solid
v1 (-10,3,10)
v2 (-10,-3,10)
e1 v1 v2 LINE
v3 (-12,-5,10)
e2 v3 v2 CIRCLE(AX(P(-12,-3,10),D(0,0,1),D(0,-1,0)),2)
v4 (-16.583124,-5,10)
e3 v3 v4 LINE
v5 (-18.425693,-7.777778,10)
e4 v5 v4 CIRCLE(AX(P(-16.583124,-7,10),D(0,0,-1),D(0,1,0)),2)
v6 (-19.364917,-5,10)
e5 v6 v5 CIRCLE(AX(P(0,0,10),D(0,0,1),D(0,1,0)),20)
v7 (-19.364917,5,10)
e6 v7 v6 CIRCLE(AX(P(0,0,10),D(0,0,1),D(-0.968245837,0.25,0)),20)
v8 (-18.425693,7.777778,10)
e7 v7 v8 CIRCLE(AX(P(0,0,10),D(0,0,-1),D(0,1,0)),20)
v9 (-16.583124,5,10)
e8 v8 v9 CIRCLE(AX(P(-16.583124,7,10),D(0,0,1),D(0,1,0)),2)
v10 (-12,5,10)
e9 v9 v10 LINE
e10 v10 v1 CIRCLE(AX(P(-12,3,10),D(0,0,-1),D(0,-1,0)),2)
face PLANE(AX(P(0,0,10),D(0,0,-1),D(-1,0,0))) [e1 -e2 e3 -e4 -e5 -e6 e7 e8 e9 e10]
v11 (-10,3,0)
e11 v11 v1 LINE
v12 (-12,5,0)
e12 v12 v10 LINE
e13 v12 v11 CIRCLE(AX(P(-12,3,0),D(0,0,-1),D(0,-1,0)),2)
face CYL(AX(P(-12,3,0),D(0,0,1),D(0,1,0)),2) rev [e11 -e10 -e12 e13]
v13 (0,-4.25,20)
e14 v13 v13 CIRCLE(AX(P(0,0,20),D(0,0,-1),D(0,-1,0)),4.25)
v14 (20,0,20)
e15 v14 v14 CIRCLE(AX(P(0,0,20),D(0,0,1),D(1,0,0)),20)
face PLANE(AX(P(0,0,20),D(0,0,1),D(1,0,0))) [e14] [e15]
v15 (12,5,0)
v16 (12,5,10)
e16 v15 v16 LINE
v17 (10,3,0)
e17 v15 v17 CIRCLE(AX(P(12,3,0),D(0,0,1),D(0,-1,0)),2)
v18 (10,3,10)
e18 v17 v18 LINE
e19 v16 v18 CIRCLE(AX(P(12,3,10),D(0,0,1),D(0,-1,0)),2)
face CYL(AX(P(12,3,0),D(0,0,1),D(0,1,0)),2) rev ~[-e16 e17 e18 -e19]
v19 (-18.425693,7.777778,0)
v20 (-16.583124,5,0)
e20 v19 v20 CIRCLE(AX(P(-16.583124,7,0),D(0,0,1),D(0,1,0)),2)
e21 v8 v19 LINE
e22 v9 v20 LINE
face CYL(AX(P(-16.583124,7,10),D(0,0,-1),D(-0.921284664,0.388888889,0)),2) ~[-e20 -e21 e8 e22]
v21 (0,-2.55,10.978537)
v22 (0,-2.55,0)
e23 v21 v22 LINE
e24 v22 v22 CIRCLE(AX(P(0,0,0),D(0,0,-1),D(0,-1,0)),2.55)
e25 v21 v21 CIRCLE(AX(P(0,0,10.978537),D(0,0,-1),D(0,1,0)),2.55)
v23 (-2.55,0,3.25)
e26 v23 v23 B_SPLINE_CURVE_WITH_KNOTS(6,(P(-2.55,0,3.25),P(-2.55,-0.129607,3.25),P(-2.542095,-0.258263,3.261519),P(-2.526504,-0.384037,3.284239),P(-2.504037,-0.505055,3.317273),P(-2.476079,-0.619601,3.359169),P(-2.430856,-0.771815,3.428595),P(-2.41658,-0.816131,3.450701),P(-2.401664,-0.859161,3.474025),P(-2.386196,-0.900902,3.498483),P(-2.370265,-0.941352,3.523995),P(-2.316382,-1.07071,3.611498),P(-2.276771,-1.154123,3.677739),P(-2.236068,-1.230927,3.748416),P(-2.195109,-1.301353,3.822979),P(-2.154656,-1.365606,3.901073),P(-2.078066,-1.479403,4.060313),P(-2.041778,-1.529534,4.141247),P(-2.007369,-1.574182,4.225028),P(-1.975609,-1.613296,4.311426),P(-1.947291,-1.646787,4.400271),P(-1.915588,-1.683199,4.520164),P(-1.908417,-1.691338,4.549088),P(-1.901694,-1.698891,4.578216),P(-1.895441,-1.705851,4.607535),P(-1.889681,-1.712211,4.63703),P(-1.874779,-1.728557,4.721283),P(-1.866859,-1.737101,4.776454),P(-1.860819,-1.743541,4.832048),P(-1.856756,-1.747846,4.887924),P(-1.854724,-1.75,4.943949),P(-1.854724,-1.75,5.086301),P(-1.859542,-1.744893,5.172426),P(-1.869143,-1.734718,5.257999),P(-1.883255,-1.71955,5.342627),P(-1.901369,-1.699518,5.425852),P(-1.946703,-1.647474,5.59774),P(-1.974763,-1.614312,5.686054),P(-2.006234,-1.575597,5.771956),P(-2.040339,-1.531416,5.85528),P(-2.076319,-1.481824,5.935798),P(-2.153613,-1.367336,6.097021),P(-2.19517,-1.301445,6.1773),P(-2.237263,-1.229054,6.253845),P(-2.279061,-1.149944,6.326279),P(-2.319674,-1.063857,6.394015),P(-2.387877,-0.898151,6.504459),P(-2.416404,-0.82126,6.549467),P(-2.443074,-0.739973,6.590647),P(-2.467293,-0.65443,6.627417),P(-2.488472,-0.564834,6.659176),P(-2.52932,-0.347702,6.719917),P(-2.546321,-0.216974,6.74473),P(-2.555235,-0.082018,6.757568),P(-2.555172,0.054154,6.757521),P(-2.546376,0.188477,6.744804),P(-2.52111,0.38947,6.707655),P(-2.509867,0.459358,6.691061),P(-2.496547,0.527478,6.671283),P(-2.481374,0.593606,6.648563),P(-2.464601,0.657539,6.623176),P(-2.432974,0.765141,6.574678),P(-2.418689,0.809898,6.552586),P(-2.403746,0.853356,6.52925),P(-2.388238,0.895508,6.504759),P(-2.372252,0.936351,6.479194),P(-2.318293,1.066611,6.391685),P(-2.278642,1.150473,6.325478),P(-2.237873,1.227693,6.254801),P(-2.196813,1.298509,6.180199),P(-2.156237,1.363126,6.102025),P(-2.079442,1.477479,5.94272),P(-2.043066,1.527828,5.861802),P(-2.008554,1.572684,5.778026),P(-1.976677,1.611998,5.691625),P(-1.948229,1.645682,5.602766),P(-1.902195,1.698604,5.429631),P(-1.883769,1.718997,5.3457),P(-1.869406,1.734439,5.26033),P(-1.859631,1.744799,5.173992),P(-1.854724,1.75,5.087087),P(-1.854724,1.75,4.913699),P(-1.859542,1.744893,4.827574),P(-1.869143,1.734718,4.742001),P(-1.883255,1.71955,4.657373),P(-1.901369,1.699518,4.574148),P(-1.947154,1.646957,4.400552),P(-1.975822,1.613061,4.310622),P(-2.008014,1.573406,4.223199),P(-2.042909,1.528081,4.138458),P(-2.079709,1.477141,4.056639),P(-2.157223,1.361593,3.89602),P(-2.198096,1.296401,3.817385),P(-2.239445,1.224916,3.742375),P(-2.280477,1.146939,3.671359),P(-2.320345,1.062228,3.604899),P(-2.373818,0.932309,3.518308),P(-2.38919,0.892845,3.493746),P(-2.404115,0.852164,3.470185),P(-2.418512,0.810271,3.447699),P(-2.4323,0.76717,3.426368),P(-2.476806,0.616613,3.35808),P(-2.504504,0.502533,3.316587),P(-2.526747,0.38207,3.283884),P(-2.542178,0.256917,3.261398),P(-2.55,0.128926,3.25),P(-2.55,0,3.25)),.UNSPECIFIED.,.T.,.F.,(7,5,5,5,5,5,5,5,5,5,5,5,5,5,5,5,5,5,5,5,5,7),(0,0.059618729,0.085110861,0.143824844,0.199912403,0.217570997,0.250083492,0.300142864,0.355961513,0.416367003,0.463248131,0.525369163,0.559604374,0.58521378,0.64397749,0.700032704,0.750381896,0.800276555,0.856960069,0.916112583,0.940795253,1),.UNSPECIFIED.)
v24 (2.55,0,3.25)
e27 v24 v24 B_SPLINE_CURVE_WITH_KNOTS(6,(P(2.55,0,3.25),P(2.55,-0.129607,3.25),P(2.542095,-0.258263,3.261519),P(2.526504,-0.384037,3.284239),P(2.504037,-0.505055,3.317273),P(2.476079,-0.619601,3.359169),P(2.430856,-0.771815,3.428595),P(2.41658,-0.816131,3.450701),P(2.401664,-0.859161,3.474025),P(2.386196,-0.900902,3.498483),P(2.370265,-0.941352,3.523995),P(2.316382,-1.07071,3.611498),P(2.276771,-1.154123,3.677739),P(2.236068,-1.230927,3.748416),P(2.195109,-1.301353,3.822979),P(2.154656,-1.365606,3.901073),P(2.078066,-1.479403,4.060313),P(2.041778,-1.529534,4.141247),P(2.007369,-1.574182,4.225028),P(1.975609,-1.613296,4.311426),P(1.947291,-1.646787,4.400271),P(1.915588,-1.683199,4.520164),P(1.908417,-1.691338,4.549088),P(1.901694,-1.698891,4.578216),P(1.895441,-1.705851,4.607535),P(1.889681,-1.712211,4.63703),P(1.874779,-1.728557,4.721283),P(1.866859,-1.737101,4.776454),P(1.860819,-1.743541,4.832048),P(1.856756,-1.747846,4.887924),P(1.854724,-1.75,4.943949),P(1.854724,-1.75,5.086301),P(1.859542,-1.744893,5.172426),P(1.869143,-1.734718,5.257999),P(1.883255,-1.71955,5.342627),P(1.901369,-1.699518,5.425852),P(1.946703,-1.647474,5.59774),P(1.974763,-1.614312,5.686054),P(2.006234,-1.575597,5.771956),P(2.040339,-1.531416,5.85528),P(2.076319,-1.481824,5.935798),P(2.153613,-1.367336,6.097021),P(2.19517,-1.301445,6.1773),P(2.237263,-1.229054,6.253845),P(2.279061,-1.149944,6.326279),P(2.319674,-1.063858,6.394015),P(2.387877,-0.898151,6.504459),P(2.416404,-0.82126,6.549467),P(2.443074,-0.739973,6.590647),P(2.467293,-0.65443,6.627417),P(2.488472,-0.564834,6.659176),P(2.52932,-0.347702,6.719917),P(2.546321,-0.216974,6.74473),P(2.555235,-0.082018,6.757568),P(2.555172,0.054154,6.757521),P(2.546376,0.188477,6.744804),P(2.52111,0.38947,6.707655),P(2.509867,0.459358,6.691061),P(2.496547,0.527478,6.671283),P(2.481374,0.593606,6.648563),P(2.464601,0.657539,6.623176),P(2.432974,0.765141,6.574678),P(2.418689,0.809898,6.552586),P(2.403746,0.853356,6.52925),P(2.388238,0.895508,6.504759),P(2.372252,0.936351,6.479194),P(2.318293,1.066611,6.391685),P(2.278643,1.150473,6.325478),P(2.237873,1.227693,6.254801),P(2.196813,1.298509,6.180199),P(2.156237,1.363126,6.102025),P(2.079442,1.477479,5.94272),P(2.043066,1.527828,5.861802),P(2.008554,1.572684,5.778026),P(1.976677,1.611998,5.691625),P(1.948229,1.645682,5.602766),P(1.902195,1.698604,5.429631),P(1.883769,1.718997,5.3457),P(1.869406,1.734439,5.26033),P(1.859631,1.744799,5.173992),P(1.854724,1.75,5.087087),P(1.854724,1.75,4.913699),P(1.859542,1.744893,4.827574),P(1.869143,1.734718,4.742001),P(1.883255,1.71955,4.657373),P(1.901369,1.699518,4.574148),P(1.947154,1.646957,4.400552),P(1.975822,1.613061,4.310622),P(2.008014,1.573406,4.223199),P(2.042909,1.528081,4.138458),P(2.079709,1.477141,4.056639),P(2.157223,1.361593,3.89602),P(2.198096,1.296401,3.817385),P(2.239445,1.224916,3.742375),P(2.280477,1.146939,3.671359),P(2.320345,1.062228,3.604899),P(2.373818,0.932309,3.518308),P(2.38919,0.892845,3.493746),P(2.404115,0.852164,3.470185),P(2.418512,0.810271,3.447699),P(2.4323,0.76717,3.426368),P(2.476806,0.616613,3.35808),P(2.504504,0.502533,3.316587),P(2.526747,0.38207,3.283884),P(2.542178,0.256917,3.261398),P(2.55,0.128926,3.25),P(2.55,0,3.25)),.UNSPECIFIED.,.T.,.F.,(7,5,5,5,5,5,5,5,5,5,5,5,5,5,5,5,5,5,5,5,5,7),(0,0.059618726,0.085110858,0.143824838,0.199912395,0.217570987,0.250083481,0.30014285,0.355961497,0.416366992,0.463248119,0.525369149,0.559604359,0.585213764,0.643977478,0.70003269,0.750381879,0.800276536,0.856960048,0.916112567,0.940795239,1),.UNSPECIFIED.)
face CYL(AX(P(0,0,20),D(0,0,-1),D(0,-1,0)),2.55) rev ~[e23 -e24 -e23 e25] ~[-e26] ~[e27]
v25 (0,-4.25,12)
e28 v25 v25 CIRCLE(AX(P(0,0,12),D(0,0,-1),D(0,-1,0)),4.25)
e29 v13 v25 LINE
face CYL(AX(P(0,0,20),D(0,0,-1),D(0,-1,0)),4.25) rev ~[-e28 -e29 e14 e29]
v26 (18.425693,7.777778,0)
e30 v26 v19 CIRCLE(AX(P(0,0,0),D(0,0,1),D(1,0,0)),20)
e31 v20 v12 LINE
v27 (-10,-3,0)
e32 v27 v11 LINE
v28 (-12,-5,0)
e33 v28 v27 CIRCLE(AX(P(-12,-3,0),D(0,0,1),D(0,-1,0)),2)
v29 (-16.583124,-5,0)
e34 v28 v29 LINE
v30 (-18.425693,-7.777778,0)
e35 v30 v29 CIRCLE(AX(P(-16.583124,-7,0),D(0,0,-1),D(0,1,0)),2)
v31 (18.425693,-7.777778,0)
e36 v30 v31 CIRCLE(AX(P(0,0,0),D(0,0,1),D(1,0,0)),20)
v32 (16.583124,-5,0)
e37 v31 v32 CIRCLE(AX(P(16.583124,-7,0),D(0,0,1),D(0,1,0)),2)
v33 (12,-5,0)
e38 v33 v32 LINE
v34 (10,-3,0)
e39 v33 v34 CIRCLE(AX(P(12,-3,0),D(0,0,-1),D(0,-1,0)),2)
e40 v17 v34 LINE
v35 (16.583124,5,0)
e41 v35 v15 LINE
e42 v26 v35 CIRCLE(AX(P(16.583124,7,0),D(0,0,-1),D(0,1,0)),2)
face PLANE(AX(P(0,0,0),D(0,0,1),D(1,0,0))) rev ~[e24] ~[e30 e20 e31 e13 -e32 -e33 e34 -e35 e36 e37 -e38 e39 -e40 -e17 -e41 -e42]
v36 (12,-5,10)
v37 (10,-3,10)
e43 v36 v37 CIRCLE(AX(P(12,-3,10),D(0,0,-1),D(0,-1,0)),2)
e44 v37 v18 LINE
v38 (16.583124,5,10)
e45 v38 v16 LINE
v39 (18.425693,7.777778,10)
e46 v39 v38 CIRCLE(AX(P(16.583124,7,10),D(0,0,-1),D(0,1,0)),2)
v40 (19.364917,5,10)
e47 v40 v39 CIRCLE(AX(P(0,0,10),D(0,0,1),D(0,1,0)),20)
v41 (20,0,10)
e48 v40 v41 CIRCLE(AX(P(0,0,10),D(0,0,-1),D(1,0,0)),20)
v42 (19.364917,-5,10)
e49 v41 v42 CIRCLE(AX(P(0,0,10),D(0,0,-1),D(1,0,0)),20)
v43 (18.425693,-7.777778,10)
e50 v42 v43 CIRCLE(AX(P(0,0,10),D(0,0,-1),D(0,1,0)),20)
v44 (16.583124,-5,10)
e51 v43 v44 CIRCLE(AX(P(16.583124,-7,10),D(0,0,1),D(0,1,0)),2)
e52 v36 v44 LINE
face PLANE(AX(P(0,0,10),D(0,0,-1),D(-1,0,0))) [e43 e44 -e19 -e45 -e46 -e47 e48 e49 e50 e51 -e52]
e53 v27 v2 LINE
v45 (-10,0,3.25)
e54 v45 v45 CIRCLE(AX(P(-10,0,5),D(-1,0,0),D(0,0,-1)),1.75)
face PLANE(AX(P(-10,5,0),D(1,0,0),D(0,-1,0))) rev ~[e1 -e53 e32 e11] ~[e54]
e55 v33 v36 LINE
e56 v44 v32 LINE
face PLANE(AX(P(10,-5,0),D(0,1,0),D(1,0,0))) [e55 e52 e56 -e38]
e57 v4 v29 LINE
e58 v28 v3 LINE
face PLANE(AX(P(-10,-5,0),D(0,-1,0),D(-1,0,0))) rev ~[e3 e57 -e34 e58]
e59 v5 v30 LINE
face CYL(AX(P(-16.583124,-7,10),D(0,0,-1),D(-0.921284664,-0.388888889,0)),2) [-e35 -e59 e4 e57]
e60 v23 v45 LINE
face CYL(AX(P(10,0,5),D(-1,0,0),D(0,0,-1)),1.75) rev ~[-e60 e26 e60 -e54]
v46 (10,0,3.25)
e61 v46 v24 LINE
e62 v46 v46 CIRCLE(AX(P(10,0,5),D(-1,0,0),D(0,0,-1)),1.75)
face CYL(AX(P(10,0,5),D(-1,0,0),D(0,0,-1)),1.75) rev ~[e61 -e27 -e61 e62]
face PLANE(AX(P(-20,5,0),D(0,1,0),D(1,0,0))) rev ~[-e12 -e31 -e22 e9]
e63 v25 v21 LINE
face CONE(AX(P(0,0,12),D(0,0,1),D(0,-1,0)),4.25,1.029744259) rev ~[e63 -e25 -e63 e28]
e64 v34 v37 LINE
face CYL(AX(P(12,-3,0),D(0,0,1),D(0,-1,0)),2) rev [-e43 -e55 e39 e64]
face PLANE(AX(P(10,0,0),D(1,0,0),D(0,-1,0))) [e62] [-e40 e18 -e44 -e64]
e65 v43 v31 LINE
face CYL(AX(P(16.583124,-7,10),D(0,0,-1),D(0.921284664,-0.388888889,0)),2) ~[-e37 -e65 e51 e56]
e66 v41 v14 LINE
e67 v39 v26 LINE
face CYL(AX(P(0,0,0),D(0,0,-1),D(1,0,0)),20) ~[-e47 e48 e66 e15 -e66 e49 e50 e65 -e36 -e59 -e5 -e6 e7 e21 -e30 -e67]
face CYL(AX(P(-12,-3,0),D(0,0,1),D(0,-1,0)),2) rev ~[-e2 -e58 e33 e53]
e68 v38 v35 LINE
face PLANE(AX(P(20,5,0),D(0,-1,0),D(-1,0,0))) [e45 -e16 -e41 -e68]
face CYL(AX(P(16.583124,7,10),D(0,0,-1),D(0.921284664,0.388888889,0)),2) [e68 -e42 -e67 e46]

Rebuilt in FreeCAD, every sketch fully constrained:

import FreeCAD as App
import Part
import Sketcher


def edges_at(feature, points):
    """Names of the edges that pass closest to the given points."""
    edges = feature.Shape.Edges
    near = lambda p: min(range(len(edges)), key=lambda i: edges[i].distToShape(Part.Vertex(*p))[0])
    return sorted({f"Edge{near(p) + 1}" for p in points})


def add_polygon(sketch, points):
    """Adds a closed chain of lines whose ends are joined by coincident constraints."""
    first, n = sketch.GeometryCount, len(points)
    for a, b in zip(points, points[1:] + points[:1]):
        sketch.addGeometry(Part.LineSegment(App.Vector(*a, 0), App.Vector(*b, 0)), False)
    for i in range(n):
        sketch.addConstraint(Sketcher.Constraint("Coincident", first + i, 2, first + (i + 1) % n, 1))

doc = App.newDocument("Part")
body = doc.addObject("PartDesign::Body", "Body")

# Sketch on XY plane
sketch1 = body.newObject("Sketcher::SketchObject", "Sketch")
sketch1.AttachmentSupport = (doc.getObject("XY_Plane"), [""])
sketch1.MapMode = "FlatFace"
sketch1.addGeometry(Part.Circle(App.Vector(0, 0, 0), App.Vector(0, 0, 1), 20), False)
sketch1.addConstraint(Sketcher.Constraint("Coincident", 0, 3, -1, 1))
sketch1.addConstraint(Sketcher.Constraint("Diameter", 0, 40.0))
pad1 = body.newObject("PartDesign::Pad", "Pad")
pad1.Profile = sketch1
pad1.Length = 20

# Sketch on XY plane
sketch2 = body.newObject("Sketcher::SketchObject", "Sketch001")
sketch2.AttachmentSupport = (doc.getObject("XY_Plane"), [""])
sketch2.MapMode = "FlatFace"
sketch2.AttachmentOffset = App.Placement(App.Vector(0, 0, 20), App.Rotation())
sketch2.addGeometry(Part.Circle(App.Vector(0, 0, 0), App.Vector(0, 0, 1), 2.55), False)
sketch2.addConstraint(Sketcher.Constraint("Coincident", 0, 3, -1, 1))
sketch2.addConstraint(Sketcher.Constraint("Diameter", 0, 5.1))
doc.recompute()
hole = body.newObject("PartDesign::Hole", "Hole")
hole.Profile = sketch2
hole.ThreadType = "None"
hole.Diameter = 5.1
hole.DepthType = "ThroughAll"

# Sketch on XY plane
sketch3 = body.newObject("Sketcher::SketchObject", "Sketch002")
sketch3.AttachmentSupport = (doc.getObject("XY_Plane"), [""])
sketch3.MapMode = "FlatFace"
sketch3.AttachmentOffset = App.Placement(App.Vector(0, 0, 20), App.Rotation())
sketch3.addGeometry(Part.Circle(App.Vector(0, 0, 0), App.Vector(0, 0, 1), 4.25), False)
sketch3.addConstraint(Sketcher.Constraint("Coincident", 0, 3, -1, 1))
sketch3.addConstraint(Sketcher.Constraint("Diameter", 0, 8.5))
doc.recompute()
hole2 = body.newObject("PartDesign::Hole", "Hole001")
hole2.Profile = sketch3
hole2.ThreadType = "None"
hole2.Diameter = 8.5
hole2.DepthType = "Dimension"
hole2.Depth = 8
hole2.DrillPoint = "Angled"
hole2.DrillPointAngle = 118

# Sketch on XY plane
sketch4 = body.newObject("Sketcher::SketchObject", "Sketch003")
sketch4.AttachmentSupport = (doc.getObject("XY_Plane"), [""])
sketch4.MapMode = "FlatFace"
add_polygon(sketch4, [(10, -5), (10, 5), (20, 5), (20, -5)])  # lines 0-3
add_polygon(sketch4, [(-10, 5), (-10, -5), (-20, -5), (-20, 5)])  # lines 4-7
sketch4.addConstraint(Sketcher.Constraint("Vertical", 0))
sketch4.addConstraint(Sketcher.Constraint("Horizontal", 1))
sketch4.addConstraint(Sketcher.Constraint("Vertical", 2))
sketch4.addConstraint(Sketcher.Constraint("Horizontal", 3))
sketch4.addConstraint(Sketcher.Constraint("Vertical", 4))
sketch4.addConstraint(Sketcher.Constraint("Horizontal", 5))
sketch4.addConstraint(Sketcher.Constraint("Vertical", 6))
sketch4.addConstraint(Sketcher.Constraint("Horizontal", 7))
sketch4.addConstraint(Sketcher.Constraint("Symmetric", 0, 2, 4, 2, -1, 1))
sketch4.addConstraint(Sketcher.Constraint("Symmetric", 2, 2, 6, 2, -1, 1))
sketch4.addConstraint(Sketcher.Constraint("Horizontal", 3, 2, 4, 2))
sketch4.addConstraint(Sketcher.Constraint("Equal", 7, 0))
sketch4.addConstraint(Sketcher.Constraint("DistanceX", 1, 1, 1, 2, 10.0))
sketch4.addConstraint(Sketcher.Constraint("DistanceX", -1, 1, 0, 2, 10.0))
pocket1 = body.newObject("PartDesign::Pocket", "Pocket")
pocket1.Profile = sketch4
pocket1.Length = 10
pocket1.Reversed = True

# Sketch on YZ plane
sketch5 = body.newObject("Sketcher::SketchObject", "Sketch004")
sketch5.AttachmentSupport = (doc.getObject("YZ_Plane"), [""])
sketch5.MapMode = "FlatFace"
sketch5.AttachmentOffset = App.Placement(App.Vector(0, 0, 10), App.Rotation())
sketch5.addGeometry(Part.Circle(App.Vector(0, 5, 0), App.Vector(0, 0, 1), 1.75), False)
sketch5.addConstraint(Sketcher.Constraint("PointOnObject", 0, 3, -2))
sketch5.addConstraint(Sketcher.Constraint("Diameter", 0, 3.5))
sketch5.addConstraint(Sketcher.Constraint("DistanceY", -1, 1, 0, 3, 5.0))
doc.recompute()
hole3 = body.newObject("PartDesign::Hole", "Hole002")
hole3.Profile = sketch5
hole3.ThreadType = "None"
hole3.Diameter = 3.5
hole3.DepthType = "ThroughAll"
doc.recompute()

fillet = body.newObject("PartDesign::Fillet", "Fillet")
fillet.Base = (hole3, edges_at(hole3, [
    (10, 5, 5),
    (10, -5, 5),
    (19.365, -5, 5),
    (19.365, 5, 5),
    (-19.365, 5, 5),
    (-19.365, -5, 5),
    (-10, 5, 5),
    (-10, -5, 5),
]))
fillet.Radius = 2

doc.recompute()
